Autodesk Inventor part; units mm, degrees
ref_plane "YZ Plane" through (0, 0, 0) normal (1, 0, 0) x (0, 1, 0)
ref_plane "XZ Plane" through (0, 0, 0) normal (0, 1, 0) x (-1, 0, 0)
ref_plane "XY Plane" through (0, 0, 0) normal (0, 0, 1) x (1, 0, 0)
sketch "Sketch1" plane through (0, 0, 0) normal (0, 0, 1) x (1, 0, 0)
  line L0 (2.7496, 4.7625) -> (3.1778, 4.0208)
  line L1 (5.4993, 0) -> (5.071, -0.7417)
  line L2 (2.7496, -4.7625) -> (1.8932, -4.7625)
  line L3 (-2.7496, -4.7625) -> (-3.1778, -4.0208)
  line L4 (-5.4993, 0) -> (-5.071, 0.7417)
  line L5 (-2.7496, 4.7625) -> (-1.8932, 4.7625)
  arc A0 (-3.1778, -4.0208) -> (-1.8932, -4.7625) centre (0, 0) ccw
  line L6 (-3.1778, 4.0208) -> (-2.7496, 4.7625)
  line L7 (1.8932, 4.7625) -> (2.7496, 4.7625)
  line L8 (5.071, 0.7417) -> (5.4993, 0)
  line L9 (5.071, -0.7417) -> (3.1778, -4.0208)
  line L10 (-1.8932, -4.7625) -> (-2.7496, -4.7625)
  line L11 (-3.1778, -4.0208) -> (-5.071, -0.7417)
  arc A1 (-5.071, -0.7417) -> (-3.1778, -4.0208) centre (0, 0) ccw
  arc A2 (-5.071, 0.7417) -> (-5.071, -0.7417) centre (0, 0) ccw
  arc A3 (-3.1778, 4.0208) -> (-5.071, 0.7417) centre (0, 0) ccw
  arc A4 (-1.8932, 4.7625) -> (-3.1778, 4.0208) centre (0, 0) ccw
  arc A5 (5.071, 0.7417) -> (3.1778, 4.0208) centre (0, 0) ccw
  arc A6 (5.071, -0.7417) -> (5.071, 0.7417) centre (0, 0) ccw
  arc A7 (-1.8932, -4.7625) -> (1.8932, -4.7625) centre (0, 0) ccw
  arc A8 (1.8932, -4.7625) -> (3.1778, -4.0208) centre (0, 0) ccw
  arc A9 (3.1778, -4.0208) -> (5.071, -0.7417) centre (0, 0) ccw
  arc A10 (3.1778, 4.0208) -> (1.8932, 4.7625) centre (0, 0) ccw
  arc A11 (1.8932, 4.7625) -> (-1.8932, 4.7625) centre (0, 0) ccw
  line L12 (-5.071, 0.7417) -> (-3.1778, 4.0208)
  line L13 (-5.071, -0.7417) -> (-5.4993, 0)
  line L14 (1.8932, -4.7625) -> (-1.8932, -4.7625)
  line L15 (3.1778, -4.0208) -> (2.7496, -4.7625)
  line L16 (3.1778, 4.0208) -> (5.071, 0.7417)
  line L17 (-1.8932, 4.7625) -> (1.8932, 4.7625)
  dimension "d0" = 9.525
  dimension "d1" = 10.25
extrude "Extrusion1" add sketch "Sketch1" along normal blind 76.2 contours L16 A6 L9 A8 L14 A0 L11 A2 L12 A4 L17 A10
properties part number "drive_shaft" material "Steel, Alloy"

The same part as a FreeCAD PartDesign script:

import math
import FreeCAD as App
import Part
import Sketcher
from FreeCAD import Vector
Q = App.Units.Quantity

doc = App.newDocument("Part")
body = doc.addObject("PartDesign::Body", "Body")

# Sketch on XY plane
sketch1 = body.newObject("Sketcher::SketchObject", "Sketch")
sketch1.AttachmentSupport = (doc.getObject("XY_Plane"), [""])
sketch1.MapMode = "FlatFace"
sketch1.addGeometry(Part.LineSegment(Vector(5.071, 0.7417, 0), Vector(3.1778, 4.0208, 0)), False)
sketch1.addGeometry(Part.ArcOfCircle(Part.Circle(Vector(-0.000958, -0.001411, 0), Vector(0, 0, 1), 5.126664), math.radians(51.680647), math.radians(68.316955)), False)
sketch1.addGeometry(Part.LineSegment(Vector(1.8932, 4.7625, 0), Vector(-1.8932, 4.7625, 0)), False)
sketch1.addGeometry(Part.ArcOfCircle(Part.Circle(Vector(-0.000743, 0.001534, 0), Vector(0, 0, 1), 5.123299), math.radians(111.677542), math.radians(128.324856)), False)
sketch1.addGeometry(Part.LineSegment(Vector(-3.1778, 4.0208, 0), Vector(-5.071, 0.7417, 0)), False)
sketch1.addGeometry(Part.ArcOfCircle(Part.Circle(Vector(0, 0, 0), Vector(0, 0, 1), 5.124955), math.radians(171.678747), math.radians(188.321253)), False)
sketch1.addGeometry(Part.LineSegment(Vector(-5.071, -0.7417, 0), Vector(-3.1778, -4.0208, 0)), False)
sketch1.addGeometry(Part.ArcOfCircle(Part.Circle(Vector(0.000958, 0.001411, 0), Vector(0, 0, 1), 5.126664), math.radians(-128.319353), math.radians(-111.683045)), False)
sketch1.addGeometry(Part.LineSegment(Vector(-1.8932, -4.7625, 0), Vector(1.8932, -4.7625, 0)), False)
sketch1.addGeometry(Part.ArcOfCircle(Part.Circle(Vector(0.000743, -0.001534, 0), Vector(0, 0, 1), 5.123299), math.radians(-68.322458), math.radians(-51.675144)), False)
sketch1.addGeometry(Part.LineSegment(Vector(3.1778, -4.0208, 0), Vector(5.071, -0.7417, 0)), False)
sketch1.addGeometry(Part.ArcOfCircle(Part.Circle(Vector(0, 0, 0), Vector(0, 0, 1), 5.124955), math.radians(-8.321253), math.radians(8.321253)), False)
sketch1.addConstraint(Sketcher.Constraint("Coincident", 0, 2, 1, 1))
sketch1.addConstraint(Sketcher.Constraint("Coincident", 1, 2, 2, 1))
sketch1.addConstraint(Sketcher.Constraint("Coincident", 2, 2, 3, 1))
sketch1.addConstraint(Sketcher.Constraint("Coincident", 3, 2, 4, 1))
sketch1.addConstraint(Sketcher.Constraint("Coincident", 4, 2, 5, 1))
sketch1.addConstraint(Sketcher.Constraint("Coincident", 5, 2, 6, 1))
sketch1.addConstraint(Sketcher.Constraint("Coincident", 6, 2, 7, 1))
sketch1.addConstraint(Sketcher.Constraint("Coincident", 7, 2, 8, 1))
sketch1.addConstraint(Sketcher.Constraint("Coincident", 8, 2, 9, 1))
sketch1.addConstraint(Sketcher.Constraint("Coincident", 9, 2, 10, 1))
sketch1.addConstraint(Sketcher.Constraint("Coincident", 10, 2, 11, 1))
sketch1.addConstraint(Sketcher.Constraint("Coincident", 11, 2, 0, 1))
sketch1.addConstraint(Sketcher.Constraint("Horizontal", 2))
sketch1.addConstraint(Sketcher.Constraint("Horizontal", 8))
sketch1.addConstraint(Sketcher.Constraint("Coincident", 5, 3, -1, 1))
sketch1.addConstraint(Sketcher.Constraint("Coincident", 11, 3, -1, 1))
sketch1.addConstraint(Sketcher.Constraint("Equal", 1, 7))
sketch1.addConstraint(Sketcher.Constraint("Equal", 3, 9))
sketch1.addConstraint(Sketcher.Constraint("Equal", 5, 11))
sketch1.addConstraint(Sketcher.Constraint("Symmetric", 1, 3, 7, 3, -1, 1))
sketch1.addConstraint(Sketcher.Constraint("Symmetric", 3, 3, 9, 3, -1, 1))
sketch1.addConstraint(Sketcher.Constraint("Symmetric", 3, 3, 7, 3, -2))
sketch1.addConstraint(Sketcher.Constraint("Symmetric", 0, 2, 3, 2, -2))
sketch1.addConstraint(Sketcher.Constraint("Symmetric", 2, 2, 7, 2, -1))
sketch1.addConstraint(Sketcher.Constraint("Parallel", 0, 6))
sketch1.addConstraint(Sketcher.Constraint("Parallel", 4, 10))
sketch1.addConstraint(Sketcher.Constraint("Horizontal", 6, 2, 9, 2))
sketch1.addConstraint(Sketcher.Constraint("Horizontal", 5, 2, 10, 2))
sketch1.addConstraint(Sketcher.Constraint("Vertical", 4, 2, 5, 2))
sketch1.addConstraint(Sketcher.Constraint("Radius", 5, 5.125))
sketch1.addConstraint(Sketcher.Constraint("Angle", 0, Q("120.0001 deg")))
sketch1.addConstraint(Sketcher.Constraint("Radius", 3, Q("0.2017 in")))
sketch1.addConstraint(Sketcher.Constraint("Radius", 1, 5.1267))
sketch1.addConstraint(Sketcher.Constraint("DistanceY", -1, 1, 1, 2, Q("0.1875 in")))
sketch1.addConstraint(Sketcher.Constraint("DistanceX", -1, 1, 0, 2, Q("0.1251 in")))
pad1 = body.newObject("PartDesign::Pad", "Pad")
pad1.Profile = sketch1
pad1.Length = Q("3 in")

doc.recompute()
